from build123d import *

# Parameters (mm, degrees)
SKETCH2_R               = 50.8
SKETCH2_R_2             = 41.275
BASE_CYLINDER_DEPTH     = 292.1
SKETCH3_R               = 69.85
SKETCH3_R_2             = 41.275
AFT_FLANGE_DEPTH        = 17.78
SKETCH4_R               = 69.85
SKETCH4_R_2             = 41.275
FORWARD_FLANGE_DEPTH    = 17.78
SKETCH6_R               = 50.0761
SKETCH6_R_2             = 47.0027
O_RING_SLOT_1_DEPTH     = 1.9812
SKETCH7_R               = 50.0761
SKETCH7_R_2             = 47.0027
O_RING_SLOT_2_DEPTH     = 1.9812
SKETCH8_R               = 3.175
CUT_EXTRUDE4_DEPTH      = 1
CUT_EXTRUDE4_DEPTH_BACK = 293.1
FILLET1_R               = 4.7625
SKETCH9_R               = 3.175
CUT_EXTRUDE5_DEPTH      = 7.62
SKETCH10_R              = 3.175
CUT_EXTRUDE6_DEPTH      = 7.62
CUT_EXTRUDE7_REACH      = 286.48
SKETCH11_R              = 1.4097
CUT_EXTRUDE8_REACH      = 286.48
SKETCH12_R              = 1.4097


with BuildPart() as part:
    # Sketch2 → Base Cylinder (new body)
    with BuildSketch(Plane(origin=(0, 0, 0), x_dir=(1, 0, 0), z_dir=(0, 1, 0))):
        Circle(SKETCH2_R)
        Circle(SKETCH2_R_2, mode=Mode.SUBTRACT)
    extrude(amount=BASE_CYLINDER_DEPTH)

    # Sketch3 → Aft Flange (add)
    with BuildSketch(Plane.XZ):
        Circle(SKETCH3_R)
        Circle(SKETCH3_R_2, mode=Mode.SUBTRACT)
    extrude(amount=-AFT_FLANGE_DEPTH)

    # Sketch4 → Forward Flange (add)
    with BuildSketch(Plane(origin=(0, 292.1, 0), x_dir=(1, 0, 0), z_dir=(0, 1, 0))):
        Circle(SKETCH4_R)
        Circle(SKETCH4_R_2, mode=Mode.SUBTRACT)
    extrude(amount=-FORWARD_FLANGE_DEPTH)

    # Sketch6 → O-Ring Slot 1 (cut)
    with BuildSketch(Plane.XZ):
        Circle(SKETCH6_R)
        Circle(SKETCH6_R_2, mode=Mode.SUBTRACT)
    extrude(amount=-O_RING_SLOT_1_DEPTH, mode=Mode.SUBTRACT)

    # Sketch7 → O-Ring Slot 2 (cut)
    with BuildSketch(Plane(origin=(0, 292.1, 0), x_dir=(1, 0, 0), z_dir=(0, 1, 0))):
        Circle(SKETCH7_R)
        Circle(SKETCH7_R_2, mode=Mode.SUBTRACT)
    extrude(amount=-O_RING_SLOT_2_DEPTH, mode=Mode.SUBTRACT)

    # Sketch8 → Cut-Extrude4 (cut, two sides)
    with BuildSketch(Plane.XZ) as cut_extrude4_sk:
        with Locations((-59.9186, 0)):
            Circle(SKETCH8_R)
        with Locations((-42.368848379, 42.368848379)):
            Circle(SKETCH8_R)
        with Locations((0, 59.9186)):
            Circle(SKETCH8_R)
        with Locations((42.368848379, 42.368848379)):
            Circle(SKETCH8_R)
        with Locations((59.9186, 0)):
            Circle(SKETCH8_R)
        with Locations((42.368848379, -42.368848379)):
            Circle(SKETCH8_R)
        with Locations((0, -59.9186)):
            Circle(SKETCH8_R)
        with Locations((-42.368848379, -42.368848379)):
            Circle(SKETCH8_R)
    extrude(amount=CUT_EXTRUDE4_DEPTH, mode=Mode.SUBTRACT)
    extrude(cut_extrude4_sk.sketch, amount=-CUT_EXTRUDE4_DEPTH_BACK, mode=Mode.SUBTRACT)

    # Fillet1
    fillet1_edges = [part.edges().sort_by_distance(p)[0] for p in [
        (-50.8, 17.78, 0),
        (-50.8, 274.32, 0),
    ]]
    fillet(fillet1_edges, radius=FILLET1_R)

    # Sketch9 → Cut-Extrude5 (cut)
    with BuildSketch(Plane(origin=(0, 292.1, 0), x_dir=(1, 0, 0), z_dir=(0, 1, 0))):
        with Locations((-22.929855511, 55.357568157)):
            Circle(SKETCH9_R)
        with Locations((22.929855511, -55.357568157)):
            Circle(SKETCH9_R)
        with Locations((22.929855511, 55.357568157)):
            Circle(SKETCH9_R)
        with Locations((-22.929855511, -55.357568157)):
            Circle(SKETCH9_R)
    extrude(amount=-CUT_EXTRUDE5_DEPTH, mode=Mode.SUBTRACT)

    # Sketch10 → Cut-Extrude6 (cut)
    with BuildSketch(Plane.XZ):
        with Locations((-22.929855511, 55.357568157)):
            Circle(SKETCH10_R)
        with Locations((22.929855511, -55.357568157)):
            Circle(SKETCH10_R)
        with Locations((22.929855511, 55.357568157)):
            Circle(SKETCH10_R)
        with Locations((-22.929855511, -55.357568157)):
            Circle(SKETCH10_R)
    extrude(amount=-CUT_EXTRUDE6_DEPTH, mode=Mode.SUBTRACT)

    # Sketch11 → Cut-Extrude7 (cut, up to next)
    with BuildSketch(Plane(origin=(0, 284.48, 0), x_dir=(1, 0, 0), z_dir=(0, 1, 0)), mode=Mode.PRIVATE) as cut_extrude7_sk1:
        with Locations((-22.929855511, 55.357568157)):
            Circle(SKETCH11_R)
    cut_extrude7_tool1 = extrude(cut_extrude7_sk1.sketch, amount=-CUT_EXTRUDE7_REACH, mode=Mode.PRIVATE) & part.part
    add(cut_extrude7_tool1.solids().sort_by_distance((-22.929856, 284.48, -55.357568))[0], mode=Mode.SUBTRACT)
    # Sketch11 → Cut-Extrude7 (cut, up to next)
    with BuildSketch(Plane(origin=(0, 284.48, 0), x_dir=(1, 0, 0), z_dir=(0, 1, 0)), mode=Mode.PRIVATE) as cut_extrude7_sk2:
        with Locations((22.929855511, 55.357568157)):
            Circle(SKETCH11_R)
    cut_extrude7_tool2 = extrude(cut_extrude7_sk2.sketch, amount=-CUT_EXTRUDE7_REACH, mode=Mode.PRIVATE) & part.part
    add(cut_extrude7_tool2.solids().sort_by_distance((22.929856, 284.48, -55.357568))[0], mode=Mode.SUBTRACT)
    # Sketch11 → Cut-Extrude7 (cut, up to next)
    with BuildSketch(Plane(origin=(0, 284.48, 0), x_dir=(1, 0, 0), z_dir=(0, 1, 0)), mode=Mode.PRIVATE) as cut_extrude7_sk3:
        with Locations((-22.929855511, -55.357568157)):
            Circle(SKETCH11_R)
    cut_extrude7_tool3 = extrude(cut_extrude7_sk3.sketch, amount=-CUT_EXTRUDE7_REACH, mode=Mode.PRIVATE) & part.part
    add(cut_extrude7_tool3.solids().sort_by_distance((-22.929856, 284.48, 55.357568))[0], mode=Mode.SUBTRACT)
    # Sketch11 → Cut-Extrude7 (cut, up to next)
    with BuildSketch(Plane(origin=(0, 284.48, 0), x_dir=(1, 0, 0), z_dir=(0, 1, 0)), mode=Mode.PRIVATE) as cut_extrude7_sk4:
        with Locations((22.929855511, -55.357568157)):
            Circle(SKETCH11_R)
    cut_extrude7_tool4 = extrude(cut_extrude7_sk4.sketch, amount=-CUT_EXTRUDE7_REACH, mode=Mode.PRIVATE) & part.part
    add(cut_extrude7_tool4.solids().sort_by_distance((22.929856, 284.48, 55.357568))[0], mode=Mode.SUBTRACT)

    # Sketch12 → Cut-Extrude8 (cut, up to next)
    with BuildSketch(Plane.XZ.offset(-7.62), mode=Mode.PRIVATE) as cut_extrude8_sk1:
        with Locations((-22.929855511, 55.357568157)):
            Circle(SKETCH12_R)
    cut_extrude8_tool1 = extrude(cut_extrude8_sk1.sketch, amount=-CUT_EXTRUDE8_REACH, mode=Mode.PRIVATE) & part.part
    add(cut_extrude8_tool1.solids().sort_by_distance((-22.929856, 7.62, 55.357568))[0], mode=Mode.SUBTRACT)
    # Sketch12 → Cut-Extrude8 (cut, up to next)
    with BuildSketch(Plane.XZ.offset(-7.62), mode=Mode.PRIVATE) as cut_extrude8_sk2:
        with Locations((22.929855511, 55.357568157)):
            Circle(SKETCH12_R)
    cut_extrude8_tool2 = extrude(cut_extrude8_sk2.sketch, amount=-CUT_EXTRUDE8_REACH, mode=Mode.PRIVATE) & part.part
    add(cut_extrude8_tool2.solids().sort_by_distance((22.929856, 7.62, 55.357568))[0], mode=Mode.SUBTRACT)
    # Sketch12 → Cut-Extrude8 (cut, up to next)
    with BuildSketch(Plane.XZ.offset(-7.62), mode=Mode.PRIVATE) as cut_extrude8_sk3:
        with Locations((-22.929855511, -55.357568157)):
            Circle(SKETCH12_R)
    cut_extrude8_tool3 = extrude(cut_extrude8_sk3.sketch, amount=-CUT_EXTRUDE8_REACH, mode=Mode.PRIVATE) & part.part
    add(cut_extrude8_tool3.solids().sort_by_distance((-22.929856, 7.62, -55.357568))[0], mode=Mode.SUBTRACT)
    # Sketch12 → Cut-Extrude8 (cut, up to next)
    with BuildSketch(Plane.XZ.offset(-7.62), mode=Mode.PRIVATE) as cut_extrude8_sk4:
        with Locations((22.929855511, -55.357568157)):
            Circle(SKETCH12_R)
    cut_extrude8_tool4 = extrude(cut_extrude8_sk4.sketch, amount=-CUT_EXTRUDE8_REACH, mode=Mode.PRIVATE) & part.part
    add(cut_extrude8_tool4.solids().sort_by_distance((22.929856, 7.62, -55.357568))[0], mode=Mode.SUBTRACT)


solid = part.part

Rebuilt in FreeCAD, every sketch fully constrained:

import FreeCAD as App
import Part
import Sketcher
Q = App.Units.Quantity


def edges_at(feature, points):
    """Names of the edges that pass closest to the given points."""
    edges = feature.Shape.Edges
    near = lambda p: min(range(len(edges)), key=lambda i: edges[i].distToShape(Part.Vertex(*p))[0])
    return sorted({f"Edge{near(p) + 1}" for p in points})

doc = App.newDocument("Part")
body = doc.addObject("PartDesign::Body", "Body")

# Sketch on XZ plane
sketch1 = doc.addObject("Sketcher::SketchObject", "Sketch")
body.addObject(sketch1)
sketch1.AttachmentSupport = (doc.XZ_Plane, [""])
sketch1.MapMode = "FlatFace"
sketch1.addGeometry([
    Part.Circle(App.Vector(0, 0, 0), App.Vector(0, 0, 1), 51),
    Part.Circle(App.Vector(0, 0, 0), App.Vector(0, 0, 1), 41),
], False)
sketch1.addConstraint([
    Sketcher.Constraint("Coincident", 0, 3, -1, 1),
    Sketcher.Constraint("Coincident", 1, 3, -1, 1),
    Sketcher.Constraint("Diameter", 0, Q("4 in")),
    Sketcher.Constraint("Diameter", 1, Q("3.25 in")),
])
pad1 = doc.addObject("PartDesign::Pad", "Pad")
body.addObject(pad1)
pad1.Profile = sketch1
pad1.Length = Q("11.5 in")
pad1.Reversed = True

# Sketch on XZ plane
sketch2 = doc.addObject("Sketcher::SketchObject", "Sketch001")
body.addObject(sketch2)
sketch2.AttachmentSupport = (doc.XZ_Plane, [""])
sketch2.MapMode = "FlatFace"
sketch2.addGeometry([
    Part.Circle(App.Vector(0, 0, 0), App.Vector(0, 0, 1), 70),
    Part.Circle(App.Vector(0, 0, 0), App.Vector(0, 0, 1), 41),
], False)
sketch2.addConstraint([
    Sketcher.Constraint("Coincident", 0, 3, -1, 1),
    Sketcher.Constraint("Coincident", 1, 3, -1, 1),
    Sketcher.Constraint("Diameter", 0, Q("5.5 in")),
    Sketcher.Constraint("Diameter", 1, Q("3.25 in")),
])
pad2 = doc.addObject("PartDesign::Pad", "Pad001")
body.addObject(pad2)
pad2.Profile = sketch2
pad2.Length = Q("0.7 in")
pad2.Reversed = True

# Sketch on XZ plane
sketch3 = doc.addObject("Sketcher::SketchObject", "Sketch002")
body.addObject(sketch3)
sketch3.AttachmentSupport = (doc.XZ_Plane, [""])
sketch3.MapMode = "FlatFace"
sketch3.AttachmentOffset = App.Placement(App.Vector(0, 0, -11.5 * 25.4), App.Rotation())
sketch3.addGeometry([
    Part.Circle(App.Vector(0, 0, 0), App.Vector(0, 0, 1), 70),
    Part.Circle(App.Vector(0, 0, 0), App.Vector(0, 0, 1), 41),
], False)
sketch3.addConstraint([
    Sketcher.Constraint("Coincident", 0, 3, -1, 1),
    Sketcher.Constraint("Coincident", 1, 3, -1, 1),
    Sketcher.Constraint("Diameter", 0, Q("5.5 in")),
    Sketcher.Constraint("Diameter", 1, Q("3.25 in")),
])
pad3 = doc.addObject("PartDesign::Pad", "Pad002")
body.addObject(pad3)
pad3.Profile = sketch3
pad3.Length = Q("0.7 in")

# Sketch on XZ plane
sketch4 = doc.addObject("Sketcher::SketchObject", "Sketch003")
body.addObject(sketch4)
sketch4.AttachmentSupport = (doc.XZ_Plane, [""])
sketch4.MapMode = "FlatFace"
sketch4.addGeometry([
    Part.Circle(App.Vector(0, 0, 0), App.Vector(0, 0, 1), 50),
    Part.Circle(App.Vector(0, 0, 0), App.Vector(0, 0, 1), 47),
], False)
sketch4.addConstraint([
    Sketcher.Constraint("Coincident", 0, 3, -1, 1),
    Sketcher.Constraint("Coincident", 1, 3, -1, 1),
    Sketcher.Constraint("Diameter", 0, Q("3.943 in")),
    Sketcher.Constraint("Diameter", 1, Q("3.701 in")),
])
pocket1 = doc.addObject("PartDesign::Pocket", "Pocket")
body.addObject(pocket1)
pocket1.Profile = sketch4
pocket1.Length = Q("0.078 in")

# Sketch on XZ plane
sketch5 = doc.addObject("Sketcher::SketchObject", "Sketch004")
body.addObject(sketch5)
sketch5.AttachmentSupport = (doc.XZ_Plane, [""])
sketch5.MapMode = "FlatFace"
sketch5.AttachmentOffset = App.Placement(App.Vector(0, 0, -11.5 * 25.4), App.Rotation())
sketch5.addGeometry([
    Part.Circle(App.Vector(0, 0, 0), App.Vector(0, 0, 1), 50),
    Part.Circle(App.Vector(0, 0, 0), App.Vector(0, 0, 1), 47),
], False)
sketch5.addConstraint([
    Sketcher.Constraint("Coincident", 0, 3, -1, 1),
    Sketcher.Constraint("Coincident", 1, 3, -1, 1),
    Sketcher.Constraint("Diameter", 0, Q("3.943 in")),
    Sketcher.Constraint("Diameter", 1, Q("3.701 in")),
])
pocket2 = doc.addObject("PartDesign::Pocket", "Pocket001")
body.addObject(pocket2)
pocket2.Profile = sketch5
pocket2.Length = Q("0.078 in")
pocket2.Reversed = True

# Sketch on XZ plane
sketch6 = doc.addObject("Sketcher::SketchObject", "Sketch005")
body.addObject(sketch6)
sketch6.AttachmentSupport = (doc.XZ_Plane, [""])
sketch6.MapMode = "FlatFace"
sketch6.addGeometry([
    Part.Circle(App.Vector(-59.9, 0, 0), App.Vector(0, 0, 1), 3.2),  # 0
    Part.Circle(App.Vector(-42.4, 42.4, 0), App.Vector(0, 0, 1), 3.2),  # 1
    Part.Circle(App.Vector(0, 59.9, 0), App.Vector(0, 0, 1), 3.2),  # 2
    Part.Circle(App.Vector(42.4, 42.4, 0), App.Vector(0, 0, 1), 3.2),  # 3
    Part.Circle(App.Vector(59.9, 0, 0), App.Vector(0, 0, 1), 3.2),  # 4
    Part.Circle(App.Vector(42.4, -42.4, 0), App.Vector(0, 0, 1), 3.2),  # 5
    Part.Circle(App.Vector(0, -59.9, 0), App.Vector(0, 0, 1), 3.2),  # 6
    Part.Circle(App.Vector(-42.4, -42.4, 0), App.Vector(0, 0, 1), 3.2),  # 7
], False)
sketch6.addConstraint([
    Sketcher.Constraint("Equal", 0, 1),
    Sketcher.Constraint("Equal", 1, 2),
    Sketcher.Constraint("Equal", 2, 3),
    Sketcher.Constraint("Equal", 3, 4),
    Sketcher.Constraint("Equal", 4, 5),
    Sketcher.Constraint("Equal", 5, 6),
    Sketcher.Constraint("Equal", 6, 7),
    Sketcher.Constraint("Symmetric", 0, 3, 4, 3, -1, 1),
    Sketcher.Constraint("Symmetric", 1, 3, 5, 3, -1, 1),
    Sketcher.Constraint("Symmetric", 2, 3, 6, 3, -1, 1),
    Sketcher.Constraint("Symmetric", 3, 3, 7, 3, -1, 1),
    Sketcher.Constraint("Symmetric", 1, 3, 3, 3, -2),
    Sketcher.Constraint("PointOnObject", 0, 3, -1),
    Sketcher.Constraint("PointOnObject", 2, 3, -2),
    Sketcher.Constraint("Diameter", 0, Q("0.25 in")),
    Sketcher.Constraint("DistanceX", 0, 3, -1, 1, Q("2.359 in")),
    Sketcher.Constraint("DistanceY", -1, 1, 2, 3, Q("2.359 in")),
    Sketcher.Constraint("DistanceX", 1, 3, -1, 1, 42.368848),
    Sketcher.Constraint("DistanceY", -1, 1, 1, 3, 42.368848),
])
pocket3 = doc.addObject("PartDesign::Pocket", "Pocket002")
body.addObject(pocket3)
pocket3.Profile = sketch6
pocket3.Type = "ThroughAll"
pocket3.Midplane = True
doc.recompute()

fillet = doc.addObject("PartDesign::Fillet", "Fillet")
body.addObject(fillet)
fillet.Base = (pocket3, edges_at(pocket3, [(-50.8, 17.78, 0), (-50.8, 274.32, 0)]))
fillet.Radius = Q("0.1875 in")

# Sketch on XZ plane
sketch7 = doc.addObject("Sketcher::SketchObject", "Sketch006")
body.addObject(sketch7)
sketch7.AttachmentSupport = (doc.XZ_Plane, [""])
sketch7.MapMode = "FlatFace"
sketch7.AttachmentOffset = App.Placement(App.Vector(0, 0, -11.5 * 25.4), App.Rotation())
sketch7.addGeometry([
    Part.Circle(App.Vector(-22.9, -55.4, 0), App.Vector(0, 0, 1), 3.2),
    Part.Circle(App.Vector(22.9, 55.4, 0), App.Vector(0, 0, 1), 3.2),
    Part.Circle(App.Vector(22.9, -55.4, 0), App.Vector(0, 0, 1), 3.2),
    Part.Circle(App.Vector(-22.9, 55.4, 0), App.Vector(0, 0, 1), 3.2),
], False)
sketch7.addConstraint([
    Sketcher.Constraint("Equal", 0, 1),
    Sketcher.Constraint("Equal", 1, 2),
    Sketcher.Constraint("Equal", 2, 3),
    Sketcher.Constraint("Symmetric", 0, 3, 1, 3, -1, 1),
    Sketcher.Constraint("Symmetric", 2, 3, 3, 3, -1, 1),
    Sketcher.Constraint("Symmetric", 0, 3, 2, 3, -2),
    Sketcher.Constraint("Diameter", 0, Q("0.25 in")),
    Sketcher.Constraint("DistanceY", 0, 3, -1, 1, 55.357568),
    Sketcher.Constraint("DistanceX", 0, 3, 1, 3, 45.859711),
])
pocket4 = doc.addObject("PartDesign::Pocket", "Pocket003")
body.addObject(pocket4)
pocket4.Profile = sketch7
pocket4.Length = Q("0.3 in")
pocket4.Reversed = True

# Sketch on XZ plane
sketch8 = doc.addObject("Sketcher::SketchObject", "Sketch007")
body.addObject(sketch8)
sketch8.AttachmentSupport = (doc.XZ_Plane, [""])
sketch8.MapMode = "FlatFace"
sketch8.addGeometry([
    Part.Circle(App.Vector(-22.9, 55.4, 0), App.Vector(0, 0, 1), 3.2),
    Part.Circle(App.Vector(22.9, -55.4, 0), App.Vector(0, 0, 1), 3.2),
    Part.Circle(App.Vector(22.9, 55.4, 0), App.Vector(0, 0, 1), 3.2),
    Part.Circle(App.Vector(-22.9, -55.4, 0), App.Vector(0, 0, 1), 3.2),
], False)
sketch8.addConstraint([
    Sketcher.Constraint("Equal", 0, 1),
    Sketcher.Constraint("Equal", 1, 2),
    Sketcher.Constraint("Equal", 2, 3),
    Sketcher.Constraint("Symmetric", 0, 3, 1, 3, -1, 1),
    Sketcher.Constraint("Symmetric", 2, 3, 3, 3, -1, 1),
    Sketcher.Constraint("Symmetric", 0, 3, 2, 3, -2),
    Sketcher.Constraint("Diameter", 0, Q("0.25 in")),
    Sketcher.Constraint("DistanceY", -1, 1, 0, 3, 55.357568),
    Sketcher.Constraint("DistanceX", 0, 3, 1, 3, 45.859711),
])
pocket5 = doc.addObject("PartDesign::Pocket", "Pocket004")
body.addObject(pocket5)
pocket5.Profile = sketch8
pocket5.Length = Q("0.3 in")

# Sketch on XZ plane
sketch9 = doc.addObject("Sketcher::SketchObject", "Sketch008")
body.addObject(sketch9)
sketch9.AttachmentSupport = (doc.XZ_Plane, [""])
sketch9.MapMode = "FlatFace"
sketch9.AttachmentOffset = App.Placement(App.Vector(0, 0, -11.2 * 25.4), App.Rotation())
sketch9.addGeometry(Part.Circle(App.Vector(-22.9, -55.4, 0), App.Vector(0, 0, 1), 1.4), False)
sketch9.addConstraint([
    Sketcher.Constraint("Diameter", 0, Q("0.111 in")),
    Sketcher.Constraint("DistanceY", 0, 3, -1, 1, 55.357568),
    Sketcher.Constraint("DistanceX", 0, 3, -1, 1, 22.929856),
])
pocket6 = doc.addObject("PartDesign::Pocket", "Pocket005")
body.addObject(pocket6)
pocket6.Profile = sketch9
pocket6.Type = "UpToFirst"
pocket6.Reversed = True

# Sketch on XZ plane
sketch10 = doc.addObject("Sketcher::SketchObject", "Sketch009")
body.addObject(sketch10)
sketch10.AttachmentSupport = (doc.XZ_Plane, [""])
sketch10.MapMode = "FlatFace"
sketch10.AttachmentOffset = App.Placement(App.Vector(0, 0, -11.2 * 25.4), App.Rotation())
sketch10.addGeometry(Part.Circle(App.Vector(22.9, -55.4, 0), App.Vector(0, 0, 1), 1.4), False)
sketch10.addConstraint([
    Sketcher.Constraint("Diameter", 0, Q("0.111 in")),
    Sketcher.Constraint("DistanceY", 0, 3, -1, 1, 55.357568),
    Sketcher.Constraint("DistanceX", -1, 1, 0, 3, 22.929856),
])
pocket7 = doc.addObject("PartDesign::Pocket", "Pocket006")
body.addObject(pocket7)
pocket7.Profile = sketch10
pocket7.Type = "UpToFirst"
pocket7.Reversed = True

# Sketch on XZ plane
sketch11 = doc.addObject("Sketcher::SketchObject", "Sketch010")
body.addObject(sketch11)
sketch11.AttachmentSupport = (doc.XZ_Plane, [""])
sketch11.MapMode = "FlatFace"
sketch11.AttachmentOffset = App.Placement(App.Vector(0, 0, -11.2 * 25.4), App.Rotation())
sketch11.addGeometry(Part.Circle(App.Vector(-22.9, 55.4, 0), App.Vector(0, 0, 1), 1.4), False)
sketch11.addConstraint([
    Sketcher.Constraint("Diameter", 0, Q("0.111 in")),
    Sketcher.Constraint("DistanceY", -1, 1, 0, 3, 55.357568),
    Sketcher.Constraint("DistanceX", 0, 3, -1, 1, 22.929856),
])
pocket8 = doc.addObject("PartDesign::Pocket", "Pocket007")
body.addObject(pocket8)
pocket8.Profile = sketch11
pocket8.Type = "UpToFirst"
pocket8.Reversed = True

# Sketch on XZ plane
sketch12 = doc.addObject("Sketcher::SketchObject", "Sketch011")
body.addObject(sketch12)
sketch12.AttachmentSupport = (doc.XZ_Plane, [""])
sketch12.MapMode = "FlatFace"
sketch12.AttachmentOffset = App.Placement(App.Vector(0, 0, -11.2 * 25.4), App.Rotation())
sketch12.addGeometry(Part.Circle(App.Vector(22.9, 55.4, 0), App.Vector(0, 0, 1), 1.4), False)
sketch12.addConstraint([
    Sketcher.Constraint("Diameter", 0, Q("0.111 in")),
    Sketcher.Constraint("DistanceY", -1, 1, 0, 3, 55.357568),
    Sketcher.Constraint("DistanceX", -1, 1, 0, 3, 22.929856),
])
pocket9 = doc.addObject("PartDesign::Pocket", "Pocket008")
body.addObject(pocket9)
pocket9.Profile = sketch12
pocket9.Type = "UpToFirst"
pocket9.Reversed = True

# Sketch on XZ plane
sketch13 = doc.addObject("Sketcher::SketchObject", "Sketch012")
body.addObject(sketch13)
sketch13.AttachmentSupport = (doc.XZ_Plane, [""])
sketch13.MapMode = "FlatFace"
sketch13.AttachmentOffset = App.Placement(App.Vector(0, 0, -0.3 * 25.4), App.Rotation())
sketch13.addGeometry(Part.Circle(App.Vector(-22.9, 55.4, 0), App.Vector(0, 0, 1), 1.4), False)
sketch13.addConstraint([
    Sketcher.Constraint("Diameter", 0, Q("0.111 in")),
    Sketcher.Constraint("DistanceY", -1, 1, 0, 3, 55.357568),
    Sketcher.Constraint("DistanceX", 0, 3, -1, 1, 22.929856),
])
pocket10 = doc.addObject("PartDesign::Pocket", "Pocket009")
body.addObject(pocket10)
pocket10.Profile = sketch13
pocket10.Type = "UpToFirst"

# Sketch on XZ plane
sketch14 = doc.addObject("Sketcher::SketchObject", "Sketch013")
body.addObject(sketch14)
sketch14.AttachmentSupport = (doc.XZ_Plane, [""])
sketch14.MapMode = "FlatFace"
sketch14.AttachmentOffset = App.Placement(App.Vector(0, 0, -0.3 * 25.4), App.Rotation())
sketch14.addGeometry(Part.Circle(App.Vector(22.9, 55.4, 0), App.Vector(0, 0, 1), 1.4), False)
sketch14.addConstraint([
    Sketcher.Constraint("Diameter", 0, Q("0.111 in")),
    Sketcher.Constraint("DistanceY", -1, 1, 0, 3, 55.357568),
    Sketcher.Constraint("DistanceX", -1, 1, 0, 3, 22.929856),
])
pocket11 = doc.addObject("PartDesign::Pocket", "Pocket010")
body.addObject(pocket11)
pocket11.Profile = sketch14
pocket11.Type = "UpToFirst"

# Sketch on XZ plane
sketch15 = doc.addObject("Sketcher::SketchObject", "Sketch014")
body.addObject(sketch15)
sketch15.AttachmentSupport = (doc.XZ_Plane, [""])
sketch15.MapMode = "FlatFace"
sketch15.AttachmentOffset = App.Placement(App.Vector(0, 0, -0.3 * 25.4), App.Rotation())
sketch15.addGeometry(Part.Circle(App.Vector(-22.9, -55.4, 0), App.Vector(0, 0, 1), 1.4), False)
sketch15.addConstraint([
    Sketcher.Constraint("Diameter", 0, Q("0.111 in")),
    Sketcher.Constraint("DistanceY", 0, 3, -1, 1, 55.357568),
    Sketcher.Constraint("DistanceX", 0, 3, -1, 1, 22.929856),
])
pocket12 = doc.addObject("PartDesign::Pocket", "Pocket011")
body.addObject(pocket12)
pocket12.Profile = sketch15
pocket12.Type = "UpToFirst"

# Sketch on XZ plane
sketch16 = doc.addObject("Sketcher::SketchObject", "Sketch015")
body.addObject(sketch16)
sketch16.AttachmentSupport = (doc.XZ_Plane, [""])
sketch16.MapMode = "FlatFace"
sketch16.AttachmentOffset = App.Placement(App.Vector(0, 0, -0.3 * 25.4), App.Rotation())
sketch16.addGeometry(Part.Circle(App.Vector(22.9, -55.4, 0), App.Vector(0, 0, 1), 1.4), False)
sketch16.addConstraint([
    Sketcher.Constraint("Diameter", 0, Q("0.111 in")),
    Sketcher.Constraint("DistanceY", 0, 3, -1, 1, 55.357568),
    Sketcher.Constraint("DistanceX", -1, 1, 0, 3, 22.929856),
])
pocket13 = doc.addObject("PartDesign::Pocket", "Pocket012")
body.addObject(pocket13)
pocket13.Profile = sketch16
pocket13.Type = "UpToFirst"

doc.recompute()
